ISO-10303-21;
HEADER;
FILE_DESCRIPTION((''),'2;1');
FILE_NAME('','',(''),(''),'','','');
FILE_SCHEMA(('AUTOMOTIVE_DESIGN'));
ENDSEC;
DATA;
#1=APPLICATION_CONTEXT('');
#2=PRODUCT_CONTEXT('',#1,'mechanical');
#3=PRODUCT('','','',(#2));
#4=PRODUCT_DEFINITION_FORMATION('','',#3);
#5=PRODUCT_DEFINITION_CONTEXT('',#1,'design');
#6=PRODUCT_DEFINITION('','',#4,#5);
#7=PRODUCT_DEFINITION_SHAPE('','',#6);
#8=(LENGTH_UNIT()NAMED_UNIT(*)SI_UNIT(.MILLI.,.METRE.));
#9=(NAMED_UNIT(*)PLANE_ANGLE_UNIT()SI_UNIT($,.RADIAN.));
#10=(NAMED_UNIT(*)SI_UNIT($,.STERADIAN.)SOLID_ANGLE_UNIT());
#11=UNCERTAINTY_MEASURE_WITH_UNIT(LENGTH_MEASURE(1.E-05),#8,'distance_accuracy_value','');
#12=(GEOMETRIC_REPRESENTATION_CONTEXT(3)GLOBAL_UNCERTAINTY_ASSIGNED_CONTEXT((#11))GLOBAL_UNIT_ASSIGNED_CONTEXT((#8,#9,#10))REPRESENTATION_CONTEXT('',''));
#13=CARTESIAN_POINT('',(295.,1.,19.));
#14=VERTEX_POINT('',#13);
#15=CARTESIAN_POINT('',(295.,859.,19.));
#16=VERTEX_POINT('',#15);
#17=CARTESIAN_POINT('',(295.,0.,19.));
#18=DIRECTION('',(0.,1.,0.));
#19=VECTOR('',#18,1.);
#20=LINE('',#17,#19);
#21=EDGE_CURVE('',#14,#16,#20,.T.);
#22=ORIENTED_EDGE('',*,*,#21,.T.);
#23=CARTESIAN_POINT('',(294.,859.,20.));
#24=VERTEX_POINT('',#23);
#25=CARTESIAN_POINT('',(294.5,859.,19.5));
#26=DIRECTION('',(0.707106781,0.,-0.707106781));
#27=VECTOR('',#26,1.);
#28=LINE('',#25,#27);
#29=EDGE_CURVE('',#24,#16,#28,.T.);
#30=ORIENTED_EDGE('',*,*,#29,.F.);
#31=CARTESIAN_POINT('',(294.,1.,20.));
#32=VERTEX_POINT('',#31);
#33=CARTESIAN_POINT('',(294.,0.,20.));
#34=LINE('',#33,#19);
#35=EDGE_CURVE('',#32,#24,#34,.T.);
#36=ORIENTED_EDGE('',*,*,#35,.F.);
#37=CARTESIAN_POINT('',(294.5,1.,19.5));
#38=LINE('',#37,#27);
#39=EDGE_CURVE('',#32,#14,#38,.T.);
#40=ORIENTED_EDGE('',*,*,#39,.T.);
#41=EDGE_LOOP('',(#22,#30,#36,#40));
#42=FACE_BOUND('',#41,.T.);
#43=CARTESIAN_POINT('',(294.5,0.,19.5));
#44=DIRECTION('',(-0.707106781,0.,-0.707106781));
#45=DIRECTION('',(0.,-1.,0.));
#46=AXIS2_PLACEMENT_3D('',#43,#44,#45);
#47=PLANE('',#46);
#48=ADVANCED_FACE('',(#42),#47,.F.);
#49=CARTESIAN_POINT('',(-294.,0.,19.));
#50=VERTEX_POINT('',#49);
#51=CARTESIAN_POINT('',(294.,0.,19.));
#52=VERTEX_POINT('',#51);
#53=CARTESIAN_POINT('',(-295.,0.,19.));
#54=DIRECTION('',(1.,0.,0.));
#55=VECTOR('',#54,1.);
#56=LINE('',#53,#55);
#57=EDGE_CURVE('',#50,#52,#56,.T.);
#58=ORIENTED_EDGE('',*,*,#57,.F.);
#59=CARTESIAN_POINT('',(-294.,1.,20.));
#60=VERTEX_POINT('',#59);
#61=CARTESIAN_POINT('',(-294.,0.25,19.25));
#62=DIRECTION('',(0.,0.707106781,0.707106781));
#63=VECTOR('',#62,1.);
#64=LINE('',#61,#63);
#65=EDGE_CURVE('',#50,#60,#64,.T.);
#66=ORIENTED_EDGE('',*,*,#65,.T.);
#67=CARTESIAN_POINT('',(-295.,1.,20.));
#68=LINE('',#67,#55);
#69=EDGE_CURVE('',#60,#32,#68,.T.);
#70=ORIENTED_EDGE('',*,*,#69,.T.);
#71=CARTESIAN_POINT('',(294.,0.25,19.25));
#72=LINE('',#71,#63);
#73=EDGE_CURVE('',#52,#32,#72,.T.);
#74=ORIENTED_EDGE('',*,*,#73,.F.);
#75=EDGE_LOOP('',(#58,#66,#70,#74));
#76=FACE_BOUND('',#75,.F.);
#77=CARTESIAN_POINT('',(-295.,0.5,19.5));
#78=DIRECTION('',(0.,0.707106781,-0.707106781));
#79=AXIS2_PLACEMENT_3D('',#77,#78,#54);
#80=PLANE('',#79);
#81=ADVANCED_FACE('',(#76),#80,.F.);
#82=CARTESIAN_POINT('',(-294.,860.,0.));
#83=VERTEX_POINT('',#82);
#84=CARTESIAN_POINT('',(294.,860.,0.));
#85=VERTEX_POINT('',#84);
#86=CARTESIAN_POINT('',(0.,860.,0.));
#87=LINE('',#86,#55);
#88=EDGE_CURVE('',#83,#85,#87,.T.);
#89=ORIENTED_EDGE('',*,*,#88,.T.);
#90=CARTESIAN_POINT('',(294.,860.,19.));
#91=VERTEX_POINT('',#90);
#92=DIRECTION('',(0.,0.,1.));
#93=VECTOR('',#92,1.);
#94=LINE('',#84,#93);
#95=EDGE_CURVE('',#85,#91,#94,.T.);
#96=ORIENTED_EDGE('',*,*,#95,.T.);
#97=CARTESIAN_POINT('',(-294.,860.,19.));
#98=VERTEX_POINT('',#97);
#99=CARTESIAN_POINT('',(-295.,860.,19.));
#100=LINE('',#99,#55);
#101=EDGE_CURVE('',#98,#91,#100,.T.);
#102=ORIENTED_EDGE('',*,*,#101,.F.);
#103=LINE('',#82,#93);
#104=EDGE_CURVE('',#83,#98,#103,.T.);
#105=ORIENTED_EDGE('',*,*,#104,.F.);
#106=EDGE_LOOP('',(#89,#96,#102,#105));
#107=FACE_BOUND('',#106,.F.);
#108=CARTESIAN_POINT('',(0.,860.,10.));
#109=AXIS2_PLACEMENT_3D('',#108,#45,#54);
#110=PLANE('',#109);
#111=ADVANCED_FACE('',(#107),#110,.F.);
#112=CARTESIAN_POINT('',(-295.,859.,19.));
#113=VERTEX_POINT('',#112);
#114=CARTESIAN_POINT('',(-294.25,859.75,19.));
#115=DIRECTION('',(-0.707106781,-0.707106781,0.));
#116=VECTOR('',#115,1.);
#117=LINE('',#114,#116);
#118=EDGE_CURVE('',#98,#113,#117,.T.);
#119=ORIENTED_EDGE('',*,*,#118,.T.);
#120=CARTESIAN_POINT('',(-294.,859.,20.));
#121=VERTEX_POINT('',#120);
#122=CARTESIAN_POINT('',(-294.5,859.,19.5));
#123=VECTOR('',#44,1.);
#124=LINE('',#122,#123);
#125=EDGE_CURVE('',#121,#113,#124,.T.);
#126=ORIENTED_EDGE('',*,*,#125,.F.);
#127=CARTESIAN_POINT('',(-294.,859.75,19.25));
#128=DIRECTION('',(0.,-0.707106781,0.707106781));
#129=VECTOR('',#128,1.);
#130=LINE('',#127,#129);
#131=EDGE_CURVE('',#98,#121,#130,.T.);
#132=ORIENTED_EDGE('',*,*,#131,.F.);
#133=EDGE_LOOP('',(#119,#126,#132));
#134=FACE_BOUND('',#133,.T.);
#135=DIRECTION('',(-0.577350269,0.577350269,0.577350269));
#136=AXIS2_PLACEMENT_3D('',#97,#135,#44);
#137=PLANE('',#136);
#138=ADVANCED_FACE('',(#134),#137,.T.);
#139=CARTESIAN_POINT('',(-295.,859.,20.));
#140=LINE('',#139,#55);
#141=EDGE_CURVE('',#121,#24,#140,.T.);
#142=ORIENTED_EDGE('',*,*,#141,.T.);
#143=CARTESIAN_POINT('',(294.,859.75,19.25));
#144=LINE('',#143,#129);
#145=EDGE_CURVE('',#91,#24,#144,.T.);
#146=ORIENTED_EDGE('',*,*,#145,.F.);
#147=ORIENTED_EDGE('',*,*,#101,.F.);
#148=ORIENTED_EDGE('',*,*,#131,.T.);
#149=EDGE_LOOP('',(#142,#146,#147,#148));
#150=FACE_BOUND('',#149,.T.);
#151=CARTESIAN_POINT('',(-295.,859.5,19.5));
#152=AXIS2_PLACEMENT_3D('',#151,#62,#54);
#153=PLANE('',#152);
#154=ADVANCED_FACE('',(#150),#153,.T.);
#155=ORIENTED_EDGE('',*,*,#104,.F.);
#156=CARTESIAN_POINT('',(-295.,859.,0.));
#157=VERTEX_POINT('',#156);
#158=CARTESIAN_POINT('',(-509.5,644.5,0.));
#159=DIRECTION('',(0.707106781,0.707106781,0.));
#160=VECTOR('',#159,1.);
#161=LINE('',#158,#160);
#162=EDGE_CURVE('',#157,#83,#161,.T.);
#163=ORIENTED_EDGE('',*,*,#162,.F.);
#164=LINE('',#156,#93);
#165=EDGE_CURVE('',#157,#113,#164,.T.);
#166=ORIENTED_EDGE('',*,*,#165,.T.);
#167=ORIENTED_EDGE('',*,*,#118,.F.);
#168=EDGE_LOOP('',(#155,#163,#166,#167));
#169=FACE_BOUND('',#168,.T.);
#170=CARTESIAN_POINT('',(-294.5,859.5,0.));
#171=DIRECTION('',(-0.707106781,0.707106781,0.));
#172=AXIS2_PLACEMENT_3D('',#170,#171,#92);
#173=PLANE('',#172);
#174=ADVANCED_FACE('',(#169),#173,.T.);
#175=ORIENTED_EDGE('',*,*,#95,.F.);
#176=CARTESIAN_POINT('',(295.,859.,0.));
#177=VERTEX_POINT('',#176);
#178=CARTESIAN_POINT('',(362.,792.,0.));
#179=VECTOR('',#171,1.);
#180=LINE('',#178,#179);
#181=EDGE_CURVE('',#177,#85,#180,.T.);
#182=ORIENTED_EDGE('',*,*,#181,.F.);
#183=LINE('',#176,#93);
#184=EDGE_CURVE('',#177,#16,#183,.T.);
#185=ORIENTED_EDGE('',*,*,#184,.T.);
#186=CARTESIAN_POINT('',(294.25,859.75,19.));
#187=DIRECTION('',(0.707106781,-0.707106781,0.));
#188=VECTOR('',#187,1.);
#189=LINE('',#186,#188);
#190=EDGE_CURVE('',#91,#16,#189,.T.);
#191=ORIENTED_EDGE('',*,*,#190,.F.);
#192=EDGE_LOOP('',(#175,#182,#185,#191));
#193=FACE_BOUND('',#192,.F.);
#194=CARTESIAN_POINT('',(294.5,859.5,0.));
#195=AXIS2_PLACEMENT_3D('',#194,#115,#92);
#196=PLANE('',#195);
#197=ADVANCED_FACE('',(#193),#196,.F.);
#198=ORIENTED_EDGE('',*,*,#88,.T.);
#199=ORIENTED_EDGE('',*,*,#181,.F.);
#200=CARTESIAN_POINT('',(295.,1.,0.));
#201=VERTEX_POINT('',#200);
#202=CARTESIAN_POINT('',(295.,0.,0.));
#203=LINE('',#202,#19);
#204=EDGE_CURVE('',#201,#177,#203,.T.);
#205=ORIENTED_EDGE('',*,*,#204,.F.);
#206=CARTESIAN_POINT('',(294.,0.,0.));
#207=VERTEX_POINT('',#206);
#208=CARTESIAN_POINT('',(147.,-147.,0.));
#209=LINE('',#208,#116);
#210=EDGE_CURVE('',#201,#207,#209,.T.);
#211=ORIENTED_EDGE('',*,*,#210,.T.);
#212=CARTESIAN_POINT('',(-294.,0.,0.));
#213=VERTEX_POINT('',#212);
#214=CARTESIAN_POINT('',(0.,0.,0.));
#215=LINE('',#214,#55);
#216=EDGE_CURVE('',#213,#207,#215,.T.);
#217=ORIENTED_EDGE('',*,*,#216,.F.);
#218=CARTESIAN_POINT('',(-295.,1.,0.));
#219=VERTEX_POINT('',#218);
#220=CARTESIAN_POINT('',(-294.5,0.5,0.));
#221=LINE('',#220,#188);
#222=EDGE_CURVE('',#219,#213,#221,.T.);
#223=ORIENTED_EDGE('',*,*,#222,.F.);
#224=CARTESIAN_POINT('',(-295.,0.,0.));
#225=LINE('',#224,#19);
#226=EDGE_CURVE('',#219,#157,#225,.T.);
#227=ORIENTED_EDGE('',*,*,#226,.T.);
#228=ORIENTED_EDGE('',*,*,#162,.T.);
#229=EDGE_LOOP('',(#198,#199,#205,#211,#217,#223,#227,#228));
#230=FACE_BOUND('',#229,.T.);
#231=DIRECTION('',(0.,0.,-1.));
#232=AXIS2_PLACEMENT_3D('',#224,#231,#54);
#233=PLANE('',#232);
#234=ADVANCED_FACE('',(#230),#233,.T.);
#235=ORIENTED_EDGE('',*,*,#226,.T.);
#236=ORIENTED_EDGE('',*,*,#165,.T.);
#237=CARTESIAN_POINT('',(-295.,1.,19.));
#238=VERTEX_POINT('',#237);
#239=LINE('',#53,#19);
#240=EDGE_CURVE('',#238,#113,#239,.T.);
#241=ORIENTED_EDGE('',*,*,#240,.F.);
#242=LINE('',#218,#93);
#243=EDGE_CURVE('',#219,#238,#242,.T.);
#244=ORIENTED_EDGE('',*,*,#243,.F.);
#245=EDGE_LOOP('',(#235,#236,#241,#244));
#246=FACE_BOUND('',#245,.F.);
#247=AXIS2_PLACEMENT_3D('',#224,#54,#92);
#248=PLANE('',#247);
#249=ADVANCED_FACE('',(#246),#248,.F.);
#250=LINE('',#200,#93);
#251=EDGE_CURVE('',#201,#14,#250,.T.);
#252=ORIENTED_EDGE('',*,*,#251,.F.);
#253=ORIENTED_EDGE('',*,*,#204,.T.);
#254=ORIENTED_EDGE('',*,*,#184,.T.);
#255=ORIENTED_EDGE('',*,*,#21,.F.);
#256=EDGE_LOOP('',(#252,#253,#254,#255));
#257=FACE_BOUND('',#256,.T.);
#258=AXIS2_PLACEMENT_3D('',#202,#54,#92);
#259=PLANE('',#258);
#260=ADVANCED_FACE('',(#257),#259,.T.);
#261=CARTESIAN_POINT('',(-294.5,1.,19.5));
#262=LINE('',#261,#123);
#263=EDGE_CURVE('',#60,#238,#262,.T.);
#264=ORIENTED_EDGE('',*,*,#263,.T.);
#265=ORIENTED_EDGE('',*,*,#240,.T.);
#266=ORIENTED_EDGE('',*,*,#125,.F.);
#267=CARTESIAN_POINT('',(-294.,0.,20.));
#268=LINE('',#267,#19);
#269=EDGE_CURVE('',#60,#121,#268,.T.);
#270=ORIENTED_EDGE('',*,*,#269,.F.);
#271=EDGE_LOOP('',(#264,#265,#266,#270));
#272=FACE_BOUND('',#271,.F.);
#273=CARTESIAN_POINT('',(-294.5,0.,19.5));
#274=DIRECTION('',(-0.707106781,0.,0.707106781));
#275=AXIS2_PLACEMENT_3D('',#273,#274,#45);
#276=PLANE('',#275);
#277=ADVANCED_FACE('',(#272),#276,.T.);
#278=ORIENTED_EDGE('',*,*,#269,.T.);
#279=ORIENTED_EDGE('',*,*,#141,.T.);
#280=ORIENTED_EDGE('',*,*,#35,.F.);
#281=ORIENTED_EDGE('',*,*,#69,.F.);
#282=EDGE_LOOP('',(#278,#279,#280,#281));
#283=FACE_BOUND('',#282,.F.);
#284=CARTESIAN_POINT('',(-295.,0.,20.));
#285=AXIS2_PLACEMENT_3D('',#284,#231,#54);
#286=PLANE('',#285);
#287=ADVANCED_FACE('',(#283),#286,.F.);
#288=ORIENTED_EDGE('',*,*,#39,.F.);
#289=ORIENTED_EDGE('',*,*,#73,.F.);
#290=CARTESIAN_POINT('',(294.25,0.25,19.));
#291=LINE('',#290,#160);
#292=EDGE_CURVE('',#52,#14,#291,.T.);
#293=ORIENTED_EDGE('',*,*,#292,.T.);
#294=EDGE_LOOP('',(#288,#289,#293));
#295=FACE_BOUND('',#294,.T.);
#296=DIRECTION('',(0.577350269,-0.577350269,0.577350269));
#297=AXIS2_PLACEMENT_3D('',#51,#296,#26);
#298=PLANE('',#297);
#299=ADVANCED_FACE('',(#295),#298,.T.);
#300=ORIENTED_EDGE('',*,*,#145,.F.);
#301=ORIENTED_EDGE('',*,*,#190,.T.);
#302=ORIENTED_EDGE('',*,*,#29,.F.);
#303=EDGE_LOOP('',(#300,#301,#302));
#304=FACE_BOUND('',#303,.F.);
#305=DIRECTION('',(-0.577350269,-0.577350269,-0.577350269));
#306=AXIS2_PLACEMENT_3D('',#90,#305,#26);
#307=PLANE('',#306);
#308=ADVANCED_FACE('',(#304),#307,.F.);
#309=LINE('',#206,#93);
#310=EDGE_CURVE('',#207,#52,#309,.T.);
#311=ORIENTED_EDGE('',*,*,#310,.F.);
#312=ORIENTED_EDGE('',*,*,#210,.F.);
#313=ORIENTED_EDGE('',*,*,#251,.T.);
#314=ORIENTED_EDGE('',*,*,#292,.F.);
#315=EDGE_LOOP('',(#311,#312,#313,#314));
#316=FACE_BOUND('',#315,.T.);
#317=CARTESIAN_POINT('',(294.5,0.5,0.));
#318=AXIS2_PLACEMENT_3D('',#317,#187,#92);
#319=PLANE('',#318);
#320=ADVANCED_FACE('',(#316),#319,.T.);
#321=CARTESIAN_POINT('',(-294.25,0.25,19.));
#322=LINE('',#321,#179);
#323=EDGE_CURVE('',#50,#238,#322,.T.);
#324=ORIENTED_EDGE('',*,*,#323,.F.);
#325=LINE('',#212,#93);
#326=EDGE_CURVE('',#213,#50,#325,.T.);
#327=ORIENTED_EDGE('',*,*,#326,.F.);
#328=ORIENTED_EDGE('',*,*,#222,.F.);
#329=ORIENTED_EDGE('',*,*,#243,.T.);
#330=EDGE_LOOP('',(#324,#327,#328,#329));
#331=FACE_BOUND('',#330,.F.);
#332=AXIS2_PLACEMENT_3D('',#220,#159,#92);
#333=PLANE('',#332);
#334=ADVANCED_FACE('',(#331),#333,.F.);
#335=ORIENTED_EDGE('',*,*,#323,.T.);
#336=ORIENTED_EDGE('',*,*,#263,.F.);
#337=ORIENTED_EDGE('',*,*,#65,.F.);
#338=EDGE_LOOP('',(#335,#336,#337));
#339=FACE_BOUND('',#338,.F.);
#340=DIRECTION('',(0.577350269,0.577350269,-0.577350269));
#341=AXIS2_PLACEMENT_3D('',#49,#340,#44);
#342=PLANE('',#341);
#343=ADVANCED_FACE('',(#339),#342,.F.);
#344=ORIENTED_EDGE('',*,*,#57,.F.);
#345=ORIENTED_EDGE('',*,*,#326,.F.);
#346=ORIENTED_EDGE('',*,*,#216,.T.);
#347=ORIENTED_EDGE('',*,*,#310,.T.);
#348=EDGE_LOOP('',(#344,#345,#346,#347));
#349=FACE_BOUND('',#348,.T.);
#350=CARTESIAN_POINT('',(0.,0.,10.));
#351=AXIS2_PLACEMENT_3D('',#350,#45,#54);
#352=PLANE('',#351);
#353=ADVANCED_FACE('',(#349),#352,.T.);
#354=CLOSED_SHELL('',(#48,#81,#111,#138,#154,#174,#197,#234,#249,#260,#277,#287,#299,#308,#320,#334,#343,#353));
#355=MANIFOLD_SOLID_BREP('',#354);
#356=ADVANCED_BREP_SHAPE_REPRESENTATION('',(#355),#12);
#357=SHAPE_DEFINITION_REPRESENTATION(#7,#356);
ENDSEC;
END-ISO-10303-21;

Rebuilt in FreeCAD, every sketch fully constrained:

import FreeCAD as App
import Part
import Sketcher


def edges_at(feature, points):
    """Names of the edges that pass closest to the given points."""
    edges = feature.Shape.Edges
    near = lambda p: min(range(len(edges)), key=lambda i: edges[i].distToShape(Part.Vertex(*p))[0])
    return sorted({f"Edge{near(p) + 1}" for p in points})


def add_polygon(sketch, points):
    """Adds a closed chain of lines whose ends are joined by coincident constraints."""
    first, n = sketch.GeometryCount, len(points)
    for a, b in zip(points, points[1:] + points[:1]):
        sketch.addGeometry(Part.LineSegment(App.Vector(*a, 0), App.Vector(*b, 0)), False)
    for i in range(n):
        sketch.addConstraint(Sketcher.Constraint("Coincident", first + i, 2, first + (i + 1) % n, 1))

doc = App.newDocument("Part")
params = doc.addObject("Spreadsheet::Sheet", "Params")
for row, (alias, value) in enumerate([
    ("sketch1_width", "590 mm"),
    ("sketch1_height", "20 mm"),
    ("pad1_length", "860 mm"),
    ("chamfer_size", "1 mm"),
], start=1):
    params.set(f"A{row}", alias)
    params.set(f"B{row}", "=" + value)
    params.setAlias(f"B{row}", alias)

body = doc.addObject("PartDesign::Body", "Body")

sketch1 = body.newObject("Sketcher::SketchObject", "Sketch")
sketch1.AttachmentSupport = (doc.getObject("XZ_Plane"), [""])
sketch1.MapMode = "FlatFace"
add_polygon(sketch1, [(-295, 20), (-295, 0), (295, 0), (295, 20)])
sketch1.addConstraint([
    Sketcher.Constraint("Vertical", 0),
    Sketcher.Constraint("Horizontal", 1),
    Sketcher.Constraint("Vertical", 2),
    Sketcher.Constraint("Horizontal", 3),
    Sketcher.Constraint("Symmetric", 0, 2, 1, 2, -1, 1),
    Sketcher.Constraint("DistanceX", 1, 1, 1, 2, 590.0),
    Sketcher.Constraint("DistanceY", 0, 2, 0, 1, 20.0),
])
sketch1.setExpression("Constraints[9]", "Params.sketch1_width")
sketch1.setExpression("Constraints[10]", "Params.sketch1_height")
pad1 = body.newObject("PartDesign::Pad", "Pad")
pad1.Profile = sketch1
pad1.setExpression("Length", "Params.pad1_length")
pad1.Reversed = True
doc.recompute()

chamfer = body.newObject("PartDesign::Chamfer", "Chamfer")
chamfer.Base = (pad1, edges_at(pad1, [
    (295, 430, 20),
    (-295, 430, 20),
    (0, 0, 20),
    (0, 860, 20),
    (295, 0, 10),
    (295, 860, 10),
    (-295, 0, 10),
    (-295, 860, 10),
]))
chamfer.setExpression("Size", "Params.chamfer_size")

doc.recompute()
